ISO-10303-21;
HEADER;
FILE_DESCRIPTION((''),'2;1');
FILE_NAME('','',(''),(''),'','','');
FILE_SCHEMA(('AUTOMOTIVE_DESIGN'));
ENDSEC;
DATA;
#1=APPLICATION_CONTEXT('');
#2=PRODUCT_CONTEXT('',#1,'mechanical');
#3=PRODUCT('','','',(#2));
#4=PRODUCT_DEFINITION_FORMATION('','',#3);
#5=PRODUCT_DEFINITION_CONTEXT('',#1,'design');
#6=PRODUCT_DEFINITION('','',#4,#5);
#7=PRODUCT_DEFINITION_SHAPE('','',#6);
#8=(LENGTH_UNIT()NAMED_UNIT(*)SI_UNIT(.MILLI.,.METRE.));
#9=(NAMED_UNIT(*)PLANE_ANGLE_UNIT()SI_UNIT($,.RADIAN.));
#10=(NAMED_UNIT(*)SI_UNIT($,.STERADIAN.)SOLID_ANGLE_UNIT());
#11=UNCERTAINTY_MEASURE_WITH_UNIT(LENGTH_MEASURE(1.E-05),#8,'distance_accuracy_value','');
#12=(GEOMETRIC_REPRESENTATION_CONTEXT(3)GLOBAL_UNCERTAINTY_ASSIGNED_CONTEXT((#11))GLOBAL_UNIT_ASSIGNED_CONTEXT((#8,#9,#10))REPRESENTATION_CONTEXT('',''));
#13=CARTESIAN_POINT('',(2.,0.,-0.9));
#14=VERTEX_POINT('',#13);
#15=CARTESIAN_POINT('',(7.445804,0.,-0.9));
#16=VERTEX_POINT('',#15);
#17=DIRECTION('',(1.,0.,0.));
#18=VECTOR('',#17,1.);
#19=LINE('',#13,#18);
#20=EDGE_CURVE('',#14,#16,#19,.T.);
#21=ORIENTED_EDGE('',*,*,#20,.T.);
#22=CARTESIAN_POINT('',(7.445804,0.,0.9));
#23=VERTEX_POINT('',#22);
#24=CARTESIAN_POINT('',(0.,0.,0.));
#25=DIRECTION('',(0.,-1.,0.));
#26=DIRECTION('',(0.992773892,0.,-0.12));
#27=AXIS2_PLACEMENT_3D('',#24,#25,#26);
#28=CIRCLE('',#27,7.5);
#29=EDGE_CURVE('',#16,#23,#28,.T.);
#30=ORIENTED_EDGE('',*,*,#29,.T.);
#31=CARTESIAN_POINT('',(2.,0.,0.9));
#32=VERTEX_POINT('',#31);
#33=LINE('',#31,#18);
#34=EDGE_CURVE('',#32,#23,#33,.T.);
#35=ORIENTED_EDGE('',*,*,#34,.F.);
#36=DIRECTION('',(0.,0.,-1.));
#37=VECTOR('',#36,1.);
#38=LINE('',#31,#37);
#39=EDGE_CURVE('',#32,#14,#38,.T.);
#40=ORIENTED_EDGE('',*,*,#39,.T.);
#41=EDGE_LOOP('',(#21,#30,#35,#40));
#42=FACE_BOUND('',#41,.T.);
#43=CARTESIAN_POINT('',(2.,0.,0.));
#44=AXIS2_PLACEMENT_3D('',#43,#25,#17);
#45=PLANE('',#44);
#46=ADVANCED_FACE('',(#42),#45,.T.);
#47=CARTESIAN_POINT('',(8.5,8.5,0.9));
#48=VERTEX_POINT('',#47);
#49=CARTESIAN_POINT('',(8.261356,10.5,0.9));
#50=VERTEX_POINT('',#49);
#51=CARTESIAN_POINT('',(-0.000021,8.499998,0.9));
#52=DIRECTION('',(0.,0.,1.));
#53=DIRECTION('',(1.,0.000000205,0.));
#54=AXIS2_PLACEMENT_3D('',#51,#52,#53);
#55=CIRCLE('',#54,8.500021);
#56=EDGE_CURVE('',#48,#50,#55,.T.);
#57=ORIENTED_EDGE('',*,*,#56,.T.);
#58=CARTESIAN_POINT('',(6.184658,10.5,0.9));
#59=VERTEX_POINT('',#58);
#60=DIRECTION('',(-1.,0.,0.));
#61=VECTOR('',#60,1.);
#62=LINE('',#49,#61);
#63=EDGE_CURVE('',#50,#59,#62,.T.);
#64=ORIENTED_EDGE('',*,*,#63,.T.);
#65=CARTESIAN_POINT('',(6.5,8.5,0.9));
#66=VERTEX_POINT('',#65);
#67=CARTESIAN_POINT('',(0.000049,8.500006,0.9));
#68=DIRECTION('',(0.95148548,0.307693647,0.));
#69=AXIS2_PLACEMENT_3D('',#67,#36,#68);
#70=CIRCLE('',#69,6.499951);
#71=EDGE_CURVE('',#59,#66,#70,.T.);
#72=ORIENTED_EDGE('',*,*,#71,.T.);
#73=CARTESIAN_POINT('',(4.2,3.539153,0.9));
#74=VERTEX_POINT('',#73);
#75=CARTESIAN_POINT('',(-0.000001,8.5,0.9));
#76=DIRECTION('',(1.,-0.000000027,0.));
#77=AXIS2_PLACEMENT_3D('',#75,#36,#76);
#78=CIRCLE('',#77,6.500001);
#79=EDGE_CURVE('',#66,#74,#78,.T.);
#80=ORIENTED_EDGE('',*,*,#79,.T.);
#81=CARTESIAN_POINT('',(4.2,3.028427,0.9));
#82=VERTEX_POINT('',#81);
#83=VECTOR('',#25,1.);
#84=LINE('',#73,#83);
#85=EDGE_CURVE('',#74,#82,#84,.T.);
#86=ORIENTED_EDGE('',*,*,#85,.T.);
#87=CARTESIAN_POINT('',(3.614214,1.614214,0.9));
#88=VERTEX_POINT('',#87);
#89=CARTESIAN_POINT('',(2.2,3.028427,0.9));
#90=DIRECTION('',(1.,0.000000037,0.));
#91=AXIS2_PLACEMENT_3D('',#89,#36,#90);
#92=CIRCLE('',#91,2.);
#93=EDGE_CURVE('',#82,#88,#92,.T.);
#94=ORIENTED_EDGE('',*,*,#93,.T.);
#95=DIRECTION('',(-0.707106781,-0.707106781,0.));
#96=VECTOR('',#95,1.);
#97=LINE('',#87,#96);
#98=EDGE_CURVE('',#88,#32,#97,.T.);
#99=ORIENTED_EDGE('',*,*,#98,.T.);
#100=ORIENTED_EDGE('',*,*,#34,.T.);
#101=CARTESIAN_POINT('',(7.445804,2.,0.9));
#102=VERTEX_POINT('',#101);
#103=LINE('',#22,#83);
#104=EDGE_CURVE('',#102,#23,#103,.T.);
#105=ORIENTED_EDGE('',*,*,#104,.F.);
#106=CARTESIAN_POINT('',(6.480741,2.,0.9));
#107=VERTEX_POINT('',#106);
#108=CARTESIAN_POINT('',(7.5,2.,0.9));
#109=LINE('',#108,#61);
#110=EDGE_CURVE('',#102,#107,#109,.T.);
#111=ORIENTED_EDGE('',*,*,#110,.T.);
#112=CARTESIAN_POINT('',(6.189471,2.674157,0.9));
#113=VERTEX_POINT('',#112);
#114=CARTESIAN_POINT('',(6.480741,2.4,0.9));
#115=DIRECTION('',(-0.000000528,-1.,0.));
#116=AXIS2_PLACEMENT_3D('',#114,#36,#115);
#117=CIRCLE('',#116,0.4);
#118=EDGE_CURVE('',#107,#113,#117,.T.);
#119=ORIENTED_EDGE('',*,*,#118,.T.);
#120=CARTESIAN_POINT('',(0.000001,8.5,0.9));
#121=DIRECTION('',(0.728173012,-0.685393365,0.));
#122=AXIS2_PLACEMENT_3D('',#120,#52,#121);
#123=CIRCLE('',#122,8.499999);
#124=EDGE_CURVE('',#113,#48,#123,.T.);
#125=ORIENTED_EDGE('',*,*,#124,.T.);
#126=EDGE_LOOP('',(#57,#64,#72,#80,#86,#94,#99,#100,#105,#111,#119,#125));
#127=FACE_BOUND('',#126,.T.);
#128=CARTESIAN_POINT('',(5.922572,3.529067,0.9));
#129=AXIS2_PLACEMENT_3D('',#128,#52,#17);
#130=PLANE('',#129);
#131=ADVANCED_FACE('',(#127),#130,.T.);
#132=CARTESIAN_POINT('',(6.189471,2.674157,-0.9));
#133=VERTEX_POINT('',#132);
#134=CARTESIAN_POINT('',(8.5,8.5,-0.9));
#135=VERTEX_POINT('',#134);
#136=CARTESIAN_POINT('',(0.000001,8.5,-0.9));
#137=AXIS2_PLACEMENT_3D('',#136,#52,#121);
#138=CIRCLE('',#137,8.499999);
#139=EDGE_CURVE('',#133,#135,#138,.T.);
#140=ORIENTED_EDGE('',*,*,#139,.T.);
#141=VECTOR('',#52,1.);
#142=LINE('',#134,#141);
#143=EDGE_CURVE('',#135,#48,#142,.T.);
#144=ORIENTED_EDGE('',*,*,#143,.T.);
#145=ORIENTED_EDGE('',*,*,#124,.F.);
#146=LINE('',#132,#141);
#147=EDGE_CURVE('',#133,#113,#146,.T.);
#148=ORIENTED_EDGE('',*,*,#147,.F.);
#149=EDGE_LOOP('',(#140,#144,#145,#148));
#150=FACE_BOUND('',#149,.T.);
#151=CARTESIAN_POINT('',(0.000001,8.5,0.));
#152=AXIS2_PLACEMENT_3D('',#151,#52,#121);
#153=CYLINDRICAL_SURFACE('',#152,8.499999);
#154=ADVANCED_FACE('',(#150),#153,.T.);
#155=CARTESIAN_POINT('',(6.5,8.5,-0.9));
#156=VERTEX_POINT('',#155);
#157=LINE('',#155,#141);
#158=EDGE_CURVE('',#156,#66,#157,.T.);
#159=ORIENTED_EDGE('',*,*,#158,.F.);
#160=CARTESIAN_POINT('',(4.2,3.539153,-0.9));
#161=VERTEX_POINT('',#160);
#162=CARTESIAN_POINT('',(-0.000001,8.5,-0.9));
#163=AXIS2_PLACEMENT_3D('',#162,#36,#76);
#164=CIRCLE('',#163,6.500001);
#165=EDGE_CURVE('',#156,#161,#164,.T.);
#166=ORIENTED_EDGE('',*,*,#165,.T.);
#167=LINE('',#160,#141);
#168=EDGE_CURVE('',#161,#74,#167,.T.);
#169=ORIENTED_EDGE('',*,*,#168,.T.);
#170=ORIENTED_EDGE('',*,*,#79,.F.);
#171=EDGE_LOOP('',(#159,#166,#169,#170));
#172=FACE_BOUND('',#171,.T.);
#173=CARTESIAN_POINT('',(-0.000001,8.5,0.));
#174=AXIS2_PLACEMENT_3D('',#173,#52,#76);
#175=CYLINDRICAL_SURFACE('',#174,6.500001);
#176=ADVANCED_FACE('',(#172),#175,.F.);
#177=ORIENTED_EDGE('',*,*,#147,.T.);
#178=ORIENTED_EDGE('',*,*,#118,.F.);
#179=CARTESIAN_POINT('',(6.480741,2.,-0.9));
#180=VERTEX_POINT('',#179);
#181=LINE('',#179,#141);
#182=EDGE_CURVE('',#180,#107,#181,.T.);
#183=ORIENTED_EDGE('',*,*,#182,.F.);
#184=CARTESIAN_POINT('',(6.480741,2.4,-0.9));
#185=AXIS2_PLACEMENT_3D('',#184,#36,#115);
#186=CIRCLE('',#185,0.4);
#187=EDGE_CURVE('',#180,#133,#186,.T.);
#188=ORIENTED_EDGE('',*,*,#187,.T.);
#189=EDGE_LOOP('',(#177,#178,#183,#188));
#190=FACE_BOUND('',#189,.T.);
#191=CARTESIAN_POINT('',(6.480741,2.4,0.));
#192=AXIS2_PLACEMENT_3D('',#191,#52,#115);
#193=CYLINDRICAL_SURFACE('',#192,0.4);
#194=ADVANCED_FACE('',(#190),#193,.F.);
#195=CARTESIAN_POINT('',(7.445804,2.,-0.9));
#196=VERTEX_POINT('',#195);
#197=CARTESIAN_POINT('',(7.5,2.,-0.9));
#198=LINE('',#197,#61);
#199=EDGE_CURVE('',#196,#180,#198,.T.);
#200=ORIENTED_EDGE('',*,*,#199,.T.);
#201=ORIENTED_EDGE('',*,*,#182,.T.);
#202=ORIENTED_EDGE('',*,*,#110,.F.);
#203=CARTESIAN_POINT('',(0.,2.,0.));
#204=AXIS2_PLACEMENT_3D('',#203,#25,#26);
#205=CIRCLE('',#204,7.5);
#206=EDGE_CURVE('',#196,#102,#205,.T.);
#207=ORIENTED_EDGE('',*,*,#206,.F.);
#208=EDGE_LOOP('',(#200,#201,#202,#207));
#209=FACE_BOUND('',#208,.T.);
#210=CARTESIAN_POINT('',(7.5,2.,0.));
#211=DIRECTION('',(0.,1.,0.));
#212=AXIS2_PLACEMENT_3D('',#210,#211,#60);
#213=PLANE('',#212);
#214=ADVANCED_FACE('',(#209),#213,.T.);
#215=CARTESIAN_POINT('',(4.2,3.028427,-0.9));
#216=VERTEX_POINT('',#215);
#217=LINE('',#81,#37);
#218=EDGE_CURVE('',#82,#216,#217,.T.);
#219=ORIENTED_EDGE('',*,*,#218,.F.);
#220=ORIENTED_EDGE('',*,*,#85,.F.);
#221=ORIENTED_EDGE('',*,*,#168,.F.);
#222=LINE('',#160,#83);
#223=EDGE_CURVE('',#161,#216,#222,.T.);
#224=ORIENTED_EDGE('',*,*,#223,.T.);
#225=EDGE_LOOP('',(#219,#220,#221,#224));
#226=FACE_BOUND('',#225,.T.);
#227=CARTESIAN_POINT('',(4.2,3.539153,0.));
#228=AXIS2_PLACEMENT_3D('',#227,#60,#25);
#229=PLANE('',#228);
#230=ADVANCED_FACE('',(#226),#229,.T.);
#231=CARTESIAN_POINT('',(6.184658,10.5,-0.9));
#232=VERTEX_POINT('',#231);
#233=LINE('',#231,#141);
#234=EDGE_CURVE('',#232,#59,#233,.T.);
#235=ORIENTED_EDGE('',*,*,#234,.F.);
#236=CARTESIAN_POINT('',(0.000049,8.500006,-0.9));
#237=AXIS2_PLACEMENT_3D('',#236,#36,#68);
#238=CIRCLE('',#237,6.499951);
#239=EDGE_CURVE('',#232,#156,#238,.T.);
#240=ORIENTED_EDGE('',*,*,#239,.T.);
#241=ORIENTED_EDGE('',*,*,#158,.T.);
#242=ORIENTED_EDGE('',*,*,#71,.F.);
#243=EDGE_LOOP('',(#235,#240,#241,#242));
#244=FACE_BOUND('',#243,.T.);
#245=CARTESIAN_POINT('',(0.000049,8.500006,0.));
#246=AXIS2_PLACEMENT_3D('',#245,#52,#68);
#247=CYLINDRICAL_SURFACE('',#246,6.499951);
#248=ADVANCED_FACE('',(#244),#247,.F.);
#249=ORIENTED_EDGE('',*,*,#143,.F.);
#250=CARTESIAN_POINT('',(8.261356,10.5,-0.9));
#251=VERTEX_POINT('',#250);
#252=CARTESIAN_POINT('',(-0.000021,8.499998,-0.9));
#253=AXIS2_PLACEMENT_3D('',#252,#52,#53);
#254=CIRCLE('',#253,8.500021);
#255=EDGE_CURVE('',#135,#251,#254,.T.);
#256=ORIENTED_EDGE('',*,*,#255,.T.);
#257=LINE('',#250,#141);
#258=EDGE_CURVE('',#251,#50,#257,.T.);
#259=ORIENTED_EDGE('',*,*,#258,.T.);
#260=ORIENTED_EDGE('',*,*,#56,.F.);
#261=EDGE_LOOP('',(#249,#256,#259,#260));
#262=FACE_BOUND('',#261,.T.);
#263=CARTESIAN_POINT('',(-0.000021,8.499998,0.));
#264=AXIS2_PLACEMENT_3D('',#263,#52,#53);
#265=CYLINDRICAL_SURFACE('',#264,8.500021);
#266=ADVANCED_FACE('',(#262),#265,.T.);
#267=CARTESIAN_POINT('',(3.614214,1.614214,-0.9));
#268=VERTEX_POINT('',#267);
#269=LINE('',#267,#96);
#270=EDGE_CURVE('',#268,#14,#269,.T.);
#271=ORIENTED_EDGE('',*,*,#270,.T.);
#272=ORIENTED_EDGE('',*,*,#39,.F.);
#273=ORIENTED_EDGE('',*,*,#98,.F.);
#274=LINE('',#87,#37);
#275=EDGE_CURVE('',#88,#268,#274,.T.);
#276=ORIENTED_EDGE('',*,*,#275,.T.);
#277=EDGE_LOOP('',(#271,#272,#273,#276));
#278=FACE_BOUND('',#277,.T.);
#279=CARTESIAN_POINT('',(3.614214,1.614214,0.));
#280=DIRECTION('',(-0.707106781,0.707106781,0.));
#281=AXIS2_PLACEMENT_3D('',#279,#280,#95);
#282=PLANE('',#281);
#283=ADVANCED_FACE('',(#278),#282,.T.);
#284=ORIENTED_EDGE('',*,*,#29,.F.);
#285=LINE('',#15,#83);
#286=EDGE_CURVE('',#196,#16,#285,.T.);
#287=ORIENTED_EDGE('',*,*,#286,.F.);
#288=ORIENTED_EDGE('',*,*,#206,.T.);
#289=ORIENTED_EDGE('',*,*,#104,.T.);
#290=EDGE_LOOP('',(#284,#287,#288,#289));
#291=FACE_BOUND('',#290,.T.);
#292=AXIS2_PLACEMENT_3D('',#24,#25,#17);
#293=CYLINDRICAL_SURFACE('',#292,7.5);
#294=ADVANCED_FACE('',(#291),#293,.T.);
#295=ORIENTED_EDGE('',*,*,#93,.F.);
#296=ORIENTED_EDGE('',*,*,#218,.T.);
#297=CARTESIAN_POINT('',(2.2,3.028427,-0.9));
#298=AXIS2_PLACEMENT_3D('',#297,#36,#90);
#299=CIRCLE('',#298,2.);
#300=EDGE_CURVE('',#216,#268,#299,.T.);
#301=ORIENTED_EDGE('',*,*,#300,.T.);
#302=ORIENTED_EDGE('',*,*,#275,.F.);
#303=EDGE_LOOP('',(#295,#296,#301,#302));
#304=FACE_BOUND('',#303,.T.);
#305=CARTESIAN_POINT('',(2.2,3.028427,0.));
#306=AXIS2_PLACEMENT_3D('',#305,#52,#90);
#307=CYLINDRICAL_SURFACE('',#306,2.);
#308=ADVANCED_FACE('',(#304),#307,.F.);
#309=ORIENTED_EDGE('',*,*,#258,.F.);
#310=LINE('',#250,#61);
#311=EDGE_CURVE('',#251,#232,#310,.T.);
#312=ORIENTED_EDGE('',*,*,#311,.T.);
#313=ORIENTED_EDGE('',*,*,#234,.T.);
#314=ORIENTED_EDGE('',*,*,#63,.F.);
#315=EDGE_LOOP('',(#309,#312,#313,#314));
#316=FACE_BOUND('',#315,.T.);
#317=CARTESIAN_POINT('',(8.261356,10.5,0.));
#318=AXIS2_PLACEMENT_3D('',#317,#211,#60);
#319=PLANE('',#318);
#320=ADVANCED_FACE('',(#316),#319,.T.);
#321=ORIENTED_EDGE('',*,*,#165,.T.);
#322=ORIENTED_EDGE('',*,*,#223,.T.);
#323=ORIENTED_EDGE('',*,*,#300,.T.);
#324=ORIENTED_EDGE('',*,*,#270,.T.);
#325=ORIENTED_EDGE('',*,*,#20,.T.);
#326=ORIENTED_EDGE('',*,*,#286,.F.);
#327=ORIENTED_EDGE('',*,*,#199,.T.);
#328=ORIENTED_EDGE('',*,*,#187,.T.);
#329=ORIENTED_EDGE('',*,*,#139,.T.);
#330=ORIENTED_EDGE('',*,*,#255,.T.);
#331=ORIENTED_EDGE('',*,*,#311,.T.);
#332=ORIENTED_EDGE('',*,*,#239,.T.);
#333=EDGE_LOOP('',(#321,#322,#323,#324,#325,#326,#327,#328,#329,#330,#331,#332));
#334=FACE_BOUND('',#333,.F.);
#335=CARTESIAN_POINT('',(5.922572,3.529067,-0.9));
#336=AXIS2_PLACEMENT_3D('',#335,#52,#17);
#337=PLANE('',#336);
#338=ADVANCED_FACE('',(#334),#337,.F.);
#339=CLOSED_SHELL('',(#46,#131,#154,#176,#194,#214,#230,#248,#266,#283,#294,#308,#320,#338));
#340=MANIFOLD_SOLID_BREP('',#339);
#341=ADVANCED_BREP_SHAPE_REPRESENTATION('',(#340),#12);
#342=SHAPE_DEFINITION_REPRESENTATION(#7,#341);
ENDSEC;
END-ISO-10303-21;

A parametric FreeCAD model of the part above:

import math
import FreeCAD as App
import Part
import Sketcher
from FreeCAD import Vector
Q = App.Units.Quantity

doc = App.newDocument("Part")
params = doc.addObject("Spreadsheet::Sheet", "Params")
for row, (alias, value) in enumerate([
    ("sketch1_radius", "2 mm"),
    ("sketch1_radius2", "0.4 mm"),
    ("sketch1_radius3", "8.499999 mm"),
    ("sketch1_radius4", "6.500001 mm"),
    ("sketch1_height", "2 mm"),
    ("pad1_length", "1.8 mm"),
    ("sketch2_diameter", "16 mm"),
    ("sketch2_diameter2", "15 mm"),
    ("pocket1_length", "2 mm"),
], start=1):
    params.set(f"A{row}", alias)
    params.set(f"B{row}", "=" + value)
    params.setAlias(f"B{row}", alias)

body = doc.addObject("PartDesign::Body", "Body")

# Sketch on XY plane
sketch1 = body.newObject("Sketcher::SketchObject", "Sketch")
sketch1.AttachmentSupport = (doc.getObject("XY_Plane"), [""])
sketch1.MapMode = "FlatFace"
sketch1.addGeometry(Part.LineSegment(Vector(2, 0, 0), Vector(7.5, 0, 0)), False)
sketch1.addGeometry(Part.LineSegment(Vector(7.5, 0, 0), Vector(7.5, 2, 0)), False)
sketch1.addGeometry(Part.LineSegment(Vector(7.5, 2, 0), Vector(6.48, 2, 0)), False)
sketch1.addGeometry(Part.ArcOfCircle(Part.Circle(Vector(6.48, 2.4, 0), Vector(0, 0, 1), 0.4), math.radians(137), math.radians(270)), False)
sketch1.addGeometry(Part.ArcOfCircle(Part.Circle(Vector(0, 8.5, 0), Vector(0, 0, 1), 8.5), math.radians(-43), math.radians(0)), False)
sketch1.addGeometry(Part.ArcOfCircle(Part.Circle(Vector(0, 8.5, 0), Vector(0, 0, 1), 8.5), math.radians(0), math.radians(13.61)), False)
sketch1.addGeometry(Part.LineSegment(Vector(8.26, 10.5, 0), Vector(6.18, 10.5, 0)), False)
sketch1.addGeometry(Part.ArcOfCircle(Part.Circle(Vector(0, 8.5, 0), Vector(0, 0, 1), 6.5), math.radians(0), math.radians(17.92)), False)
sketch1.addGeometry(Part.ArcOfCircle(Part.Circle(Vector(0, 8.5, 0), Vector(0, 0, 1), 6.5), math.radians(-50), math.radians(0)), False)
sketch1.addGeometry(Part.LineSegment(Vector(4.2, 3.54, 0), Vector(4.2, 3.03, 0)), False)
sketch1.addGeometry(Part.ArcOfCircle(Part.Circle(Vector(2.2, 3.03, 0), Vector(0, 0, 1), 2), math.radians(-45), math.radians(0)), False)
sketch1.addGeometry(Part.LineSegment(Vector(3.61, 1.61, 0), Vector(2, 0, 0)), False)
sketch1.addConstraint(Sketcher.Constraint("Coincident", 0, 2, 1, 1))
sketch1.addConstraint(Sketcher.Constraint("Coincident", 1, 2, 2, 1))
sketch1.addConstraint(Sketcher.Constraint("Tangent", 2, 2, 3, 2))
sketch1.addConstraint(Sketcher.Constraint("Coincident", 3, 1, 4, 1))
sketch1.addConstraint(Sketcher.Constraint("Tangent", 4, 2, 5, 1))
sketch1.addConstraint(Sketcher.Constraint("Coincident", 5, 2, 6, 1))
sketch1.addConstraint(Sketcher.Constraint("Coincident", 6, 2, 7, 2))
sketch1.addConstraint(Sketcher.Constraint("Tangent", 7, 1, 8, 2))
sketch1.addConstraint(Sketcher.Constraint("Coincident", 8, 1, 9, 1))
sketch1.addConstraint(Sketcher.Constraint("Tangent", 9, 2, 10, 2))
sketch1.addConstraint(Sketcher.Constraint("Tangent", 10, 1, 11, 1))
sketch1.addConstraint(Sketcher.Constraint("Coincident", 11, 2, 0, 1))
sketch1.addConstraint(Sketcher.Constraint("Horizontal", 0))
sketch1.addConstraint(Sketcher.Constraint("Vertical", 1))
sketch1.addConstraint(Sketcher.Constraint("Horizontal", 2))
sketch1.addConstraint(Sketcher.Constraint("Horizontal", 6))
sketch1.addConstraint(Sketcher.Constraint("Vertical", 9))
sketch1.addConstraint(Sketcher.Constraint("Coincident", 8, 3, 4, 3))
sketch1.addConstraint(Sketcher.Constraint("PointOnObject", 4, 3, -2))
sketch1.addConstraint(Sketcher.Constraint("PointOnObject", 0, 2, -1))
sketch1.addConstraint(Sketcher.Constraint("Horizontal", 8, 3, 4, 2))
sketch1.addConstraint(Sketcher.Constraint("Horizontal", 4, 2, 7, 1))
sketch1.addConstraint(Sketcher.Constraint("Radius", 10, 2.0))
sketch1.addConstraint(Sketcher.Constraint("Radius", 3, 0.4))
sketch1.addConstraint(Sketcher.Constraint("Radius", 4, 8.499999))
sketch1.addConstraint(Sketcher.Constraint("Radius", 8, 6.500001))
sketch1.addConstraint(Sketcher.Constraint("DistanceY", 1, 1, 1, 2, 2.0))
sketch1.addConstraint(Sketcher.Constraint("Angle", 11, Q("-135 deg")))
sketch1.addConstraint(Sketcher.Constraint("DistanceX", 0, 1, 0, 2, 5.5))
sketch1.addConstraint(Sketcher.Constraint("DistanceX", -1, 1, 11, 2, 2.0))
sketch1.addConstraint(Sketcher.Constraint("DistanceY", 4, 2, 5, 2, 2.0))
sketch1.addConstraint(Sketcher.Constraint("DistanceY", -1, 1, 4, 3, 8.5))
sketch1.addConstraint(Sketcher.Constraint("DistanceX", -1, 1, 10, 3, 2.2))
sketch1.addConstraint(Sketcher.Constraint("Radius", 5, 8.500021))
sketch1.addConstraint(Sketcher.Constraint("Radius", 7, 6.499951))
sketch1.addConstraint(Sketcher.Constraint("DistanceX", -1, 1, 3, 1, 6.189471))
sketch1.setExpression("Constraints[22]", "Params.sketch1_radius")
sketch1.setExpression("Constraints[23]", "Params.sketch1_radius2")
sketch1.setExpression("Constraints[24]", "Params.sketch1_radius3")
sketch1.setExpression("Constraints[25]", "Params.sketch1_radius4")
sketch1.setExpression("Constraints[26]", "Params.sketch1_height")
pad1 = body.newObject("PartDesign::Pad", "Pad")
pad1.Profile = sketch1
pad1.setExpression("Length", "Params.pad1_length")
pad1.Midplane = True

# Sketch on XZ plane
sketch2 = body.newObject("Sketcher::SketchObject", "Sketch001")
sketch2.AttachmentSupport = (doc.getObject("XZ_Plane"), [""])
sketch2.MapMode = "FlatFace"
sketch2.addGeometry(Part.Circle(Vector(0, 0, 0), Vector(0, 0, 1), 8), False)
sketch2.addGeometry(Part.Circle(Vector(0, 0, 0), Vector(0, 0, 1), 8), False)
sketch2.addConstraint(Sketcher.Constraint("Coincident", 0, 3, -1, 1))
sketch2.addConstraint(Sketcher.Constraint("Coincident", 1, 3, -1, 1))
sketch2.addConstraint(Sketcher.Constraint("Diameter", 0, 16.0))
sketch2.addConstraint(Sketcher.Constraint("Diameter", 1, 15.0))
sketch2.setExpression("Constraints[2]", "Params.sketch2_diameter")
sketch2.setExpression("Constraints[3]", "Params.sketch2_diameter2")
pocket1 = body.newObject("PartDesign::Pocket", "Pocket")
pocket1.Profile = sketch2
pocket1.setExpression("Length", "Params.pocket1_length")

doc.recompute()
